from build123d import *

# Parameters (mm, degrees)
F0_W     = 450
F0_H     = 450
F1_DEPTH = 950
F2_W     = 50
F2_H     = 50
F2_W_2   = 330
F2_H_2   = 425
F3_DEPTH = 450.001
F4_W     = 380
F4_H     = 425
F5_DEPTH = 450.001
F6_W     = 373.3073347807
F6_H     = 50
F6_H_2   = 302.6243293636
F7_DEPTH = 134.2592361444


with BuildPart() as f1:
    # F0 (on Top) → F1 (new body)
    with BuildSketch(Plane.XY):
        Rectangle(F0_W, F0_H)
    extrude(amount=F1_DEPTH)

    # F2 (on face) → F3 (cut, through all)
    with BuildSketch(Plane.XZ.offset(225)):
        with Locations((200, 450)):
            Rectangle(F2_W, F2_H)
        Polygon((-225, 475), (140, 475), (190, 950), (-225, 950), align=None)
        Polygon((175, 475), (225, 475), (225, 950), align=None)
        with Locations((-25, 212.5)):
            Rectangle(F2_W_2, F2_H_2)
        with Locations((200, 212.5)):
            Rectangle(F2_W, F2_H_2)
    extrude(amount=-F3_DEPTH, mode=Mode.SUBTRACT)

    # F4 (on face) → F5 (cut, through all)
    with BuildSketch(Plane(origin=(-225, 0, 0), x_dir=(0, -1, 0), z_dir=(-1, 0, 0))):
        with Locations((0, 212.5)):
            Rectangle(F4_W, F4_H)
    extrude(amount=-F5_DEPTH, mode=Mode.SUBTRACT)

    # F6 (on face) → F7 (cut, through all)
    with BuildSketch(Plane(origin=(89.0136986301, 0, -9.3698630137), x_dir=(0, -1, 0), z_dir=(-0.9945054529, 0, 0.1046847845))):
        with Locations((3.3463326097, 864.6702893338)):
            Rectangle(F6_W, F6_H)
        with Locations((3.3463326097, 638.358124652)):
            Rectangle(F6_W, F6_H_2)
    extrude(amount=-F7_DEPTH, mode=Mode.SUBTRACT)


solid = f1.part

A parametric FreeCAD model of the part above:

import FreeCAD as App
import Part
import Sketcher

doc = App.newDocument("Part")
body = doc.addObject("PartDesign::Body", "Body")

# Sketch on XY plane
sketch1 = doc.addObject("Sketcher::SketchObject", "Sketch")
body.addObject(sketch1)
sketch1.AttachmentSupport = (doc.XY_Plane, [""])
sketch1.MapMode = "FlatFace"
sketch1.addGeometry([
    Part.LineSegment(App.Vector(-225, 225, 0), App.Vector(-225, -225, 0)),
    Part.LineSegment(App.Vector(-225, -225, 0), App.Vector(225, -225, 0)),
    Part.LineSegment(App.Vector(225, -225, 0), App.Vector(225, 225, 0)),
    Part.LineSegment(App.Vector(225, 225, 0), App.Vector(-225, 225, 0)),
], False)
sketch1.addConstraint([
    Sketcher.Constraint("Coincident", 0, 2, 1, 1),
    Sketcher.Constraint("Coincident", 1, 2, 2, 1),
    Sketcher.Constraint("Coincident", 2, 2, 3, 1),
    Sketcher.Constraint("Coincident", 3, 2, 0, 1),
    Sketcher.Constraint("Vertical", 0),
    Sketcher.Constraint("Horizontal", 1),
    Sketcher.Constraint("Vertical", 2),
    Sketcher.Constraint("Horizontal", 3),
    Sketcher.Constraint("Symmetric", 0, 2, 2, 2, -1, 1),
    Sketcher.Constraint("Equal", 3, 0),
    Sketcher.Constraint("DistanceX", 1, 1, 1, 2, 450.0),
])
pad1 = doc.addObject("PartDesign::Pad", "Pad")
body.addObject(pad1)
pad1.Profile = sketch1
pad1.Length = 950

# Sketch on XZ plane
sketch2 = doc.addObject("Sketcher::SketchObject", "Sketch001")
body.addObject(sketch2)
sketch2.AttachmentSupport = (doc.XZ_Plane, [""])
sketch2.MapMode = "FlatFace"
sketch2.AttachmentOffset = App.Placement(App.Vector(0, 0, 225), App.Rotation())
sketch2.addGeometry([
    Part.LineSegment(App.Vector(175, 475, 0), App.Vector(175, 0, 0)),  # 0
    Part.LineSegment(App.Vector(175, 0, 0), App.Vector(225, 0, 0)),  # 1
    Part.LineSegment(App.Vector(225, 0, 0), App.Vector(225, 950, 0)),  # 2
    Part.LineSegment(App.Vector(225, 950, 0), App.Vector(175, 475, 0)),  # 3
    Part.LineSegment(App.Vector(-225, 475, 0), App.Vector(140, 475, 0)),  # 4
    Part.LineSegment(App.Vector(140, 475, 0), App.Vector(190, 950, 0)),  # 5
    Part.LineSegment(App.Vector(190, 950, 0), App.Vector(-225, 950, 0)),  # 6
    Part.LineSegment(App.Vector(-225, 950, 0), App.Vector(-225, 475, 0)),  # 7
    Part.LineSegment(App.Vector(-190, 425, 0), App.Vector(-190, 0, 0)),  # 8
    Part.LineSegment(App.Vector(-190, 0, 0), App.Vector(140, 0, 0)),  # 9
    Part.LineSegment(App.Vector(140, 0, 0), App.Vector(140, 425, 0)),  # 10
    Part.LineSegment(App.Vector(140, 425, 0), App.Vector(-190, 425, 0)),  # 11
], False)
sketch2.addConstraint([
    Sketcher.Constraint("Coincident", 0, 2, 1, 1),
    Sketcher.Constraint("Coincident", 1, 2, 2, 1),
    Sketcher.Constraint("Coincident", 2, 2, 3, 1),
    Sketcher.Constraint("Coincident", 3, 2, 0, 1),
    Sketcher.Constraint("Coincident", 4, 2, 5, 1),
    Sketcher.Constraint("Coincident", 5, 2, 6, 1),
    Sketcher.Constraint("Coincident", 6, 2, 7, 1),
    Sketcher.Constraint("Coincident", 7, 2, 4, 1),
    Sketcher.Constraint("Coincident", 8, 2, 9, 1),
    Sketcher.Constraint("Coincident", 9, 2, 10, 1),
    Sketcher.Constraint("Coincident", 10, 2, 11, 1),
    Sketcher.Constraint("Coincident", 11, 2, 8, 1),
    Sketcher.Constraint("Vertical", 0),
    Sketcher.Constraint("Horizontal", 1),
    Sketcher.Constraint("Vertical", 2),
    Sketcher.Constraint("Horizontal", 4),
    Sketcher.Constraint("Horizontal", 6),
    Sketcher.Constraint("Vertical", 7),
    Sketcher.Constraint("Vertical", 8),
    Sketcher.Constraint("Horizontal", 9),
    Sketcher.Constraint("Vertical", 10),
    Sketcher.Constraint("Horizontal", 11),
    Sketcher.Constraint("Symmetric", 2, 2, 6, 2, -2),
    Sketcher.Constraint("PointOnObject", 0, 2, -1),
    Sketcher.Constraint("PointOnObject", 8, 2, -1),
    Sketcher.Constraint("Parallel", 3, 5),
    Sketcher.Constraint("Horizontal", 3, 2, 4, 2),
    Sketcher.Constraint("Vertical", 4, 2, 9, 2),
    Sketcher.Constraint("Equal", 0, 7),
    Sketcher.Constraint("DistanceX", 1, 1, 1, 2, 50.0),
    Sketcher.Constraint("DistanceX", 4, 1, 4, 2, 365.0),
    Sketcher.Constraint("DistanceX", 9, 1, 9, 2, 330.0),
    Sketcher.Constraint("DistanceY", 0, 2, 0, 1, 475.0),
    Sketcher.Constraint("DistanceY", 8, 2, 8, 1, 425.0),
    Sketcher.Constraint("DistanceX", -1, 1, 0, 2, 175.0),
])
pocket1 = doc.addObject("PartDesign::Pocket", "Pocket")
body.addObject(pocket1)
pocket1.Profile = sketch2
pocket1.Type = "ThroughAll"

# Sketch on YZ plane
sketch3 = doc.addObject("Sketcher::SketchObject", "Sketch002")
body.addObject(sketch3)
sketch3.AttachmentSupport = (doc.YZ_Plane, [""])
sketch3.MapMode = "FlatFace"
sketch3.AttachmentOffset = App.Placement(App.Vector(0, 0, -225), App.Rotation())
sketch3.addGeometry([
    Part.LineSegment(App.Vector(190, 425, 0), App.Vector(190, 0, 0)),
    Part.LineSegment(App.Vector(190, 0, 0), App.Vector(-190, 0, 0)),
    Part.LineSegment(App.Vector(-190, 0, 0), App.Vector(-190, 425, 0)),
    Part.LineSegment(App.Vector(-190, 425, 0), App.Vector(190, 425, 0)),
], False)
sketch3.addConstraint([
    Sketcher.Constraint("Coincident", 0, 2, 1, 1),
    Sketcher.Constraint("Coincident", 1, 2, 2, 1),
    Sketcher.Constraint("Coincident", 2, 2, 3, 1),
    Sketcher.Constraint("Coincident", 3, 2, 0, 1),
    Sketcher.Constraint("Vertical", 0),
    Sketcher.Constraint("Horizontal", 1),
    Sketcher.Constraint("Vertical", 2),
    Sketcher.Constraint("Horizontal", 3),
    Sketcher.Constraint("Symmetric", 0, 2, 1, 2, -1, 1),
    Sketcher.Constraint("DistanceX", 1, 2, 1, 1, 380.0),
    Sketcher.Constraint("DistanceY", 0, 2, 0, 1, 425.0),
])
pocket2 = doc.addObject("PartDesign::Pocket", "Pocket001")
body.addObject(pocket2)
pocket2.Profile = sketch3
pocket2.Type = "ThroughAll"
pocket2.Reversed = True

# Sketch on an angled plane
sketch4 = doc.addObject("Sketcher::SketchObject", "Sketch003")
body.addObject(sketch4)
sketch4.Placement = App.Placement(App.Vector(89.013699, 0, -9.369863), App.Rotation(App.Vector(0, -1, 0), App.Vector(0.104684785, 0, 0.994505453), App.Vector(-0.994505453, 0, 0.104684785), "ZXY"))
sketch4.addGeometry([
    Part.LineSegment(App.Vector(-183, 890, 0), App.Vector(-183, 840, 0)),  # 0
    Part.LineSegment(App.Vector(-183, 840, 0), App.Vector(190, 840, 0)),  # 1
    Part.LineSegment(App.Vector(190, 840, 0), App.Vector(190, 890, 0)),  # 2
    Part.LineSegment(App.Vector(190, 890, 0), App.Vector(-183, 890, 0)),  # 3
    Part.LineSegment(App.Vector(-183, 790, 0), App.Vector(-183, 487, 0)),  # 4
    Part.LineSegment(App.Vector(-183, 487, 0), App.Vector(190, 487, 0)),  # 5
    Part.LineSegment(App.Vector(190, 487, 0), App.Vector(190, 790, 0)),  # 6
    Part.LineSegment(App.Vector(190, 790, 0), App.Vector(-183, 790, 0)),  # 7
], False)
sketch4.addConstraint([
    Sketcher.Constraint("Coincident", 0, 2, 1, 1),
    Sketcher.Constraint("Coincident", 1, 2, 2, 1),
    Sketcher.Constraint("Coincident", 2, 2, 3, 1),
    Sketcher.Constraint("Coincident", 3, 2, 0, 1),
    Sketcher.Constraint("Coincident", 4, 2, 5, 1),
    Sketcher.Constraint("Coincident", 5, 2, 6, 1),
    Sketcher.Constraint("Coincident", 6, 2, 7, 1),
    Sketcher.Constraint("Coincident", 7, 2, 4, 1),
    Sketcher.Constraint("Vertical", 0),
    Sketcher.Constraint("Horizontal", 1),
    Sketcher.Constraint("Vertical", 2),
    Sketcher.Constraint("Horizontal", 3),
    Sketcher.Constraint("Vertical", 4),
    Sketcher.Constraint("Horizontal", 5),
    Sketcher.Constraint("Vertical", 6),
    Sketcher.Constraint("Horizontal", 7),
    Sketcher.Constraint("Vertical", 3, 2, 4, 2),
    Sketcher.Constraint("Vertical", 2, 2, 5, 2),
    Sketcher.Constraint("DistanceY", 0, 2, 0, 1, 50.0),
    Sketcher.Constraint("DistanceX", -1, 1, 1, 2, 190.0),
    Sketcher.Constraint("DistanceY", 6, 2, 1, 2, 50.0),
    Sketcher.Constraint("DistanceY", 4, 2, 4, 1, 302.624329),
    Sketcher.Constraint("DistanceX", 1, 1, 1, 2, 373.307335),
    Sketcher.Constraint("DistanceY", -1, 1, 0, 2, 839.67029),
])
pocket3 = doc.addObject("PartDesign::Pocket", "Pocket002")
body.addObject(pocket3)
pocket3.Profile = sketch4
pocket3.Type = "ThroughAll"

doc.recompute()
